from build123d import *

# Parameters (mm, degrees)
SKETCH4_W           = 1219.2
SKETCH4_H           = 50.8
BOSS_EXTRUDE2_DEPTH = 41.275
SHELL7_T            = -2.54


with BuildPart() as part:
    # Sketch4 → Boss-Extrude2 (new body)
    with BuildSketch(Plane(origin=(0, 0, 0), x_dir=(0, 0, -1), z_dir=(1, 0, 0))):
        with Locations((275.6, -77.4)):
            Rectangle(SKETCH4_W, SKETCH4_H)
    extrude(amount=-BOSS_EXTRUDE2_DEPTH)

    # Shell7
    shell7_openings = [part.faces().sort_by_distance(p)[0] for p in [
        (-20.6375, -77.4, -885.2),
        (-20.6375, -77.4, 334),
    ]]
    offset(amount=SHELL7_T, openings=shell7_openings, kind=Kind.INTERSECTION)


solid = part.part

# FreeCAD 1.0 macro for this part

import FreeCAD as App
import Part
import Sketcher
from FreeCAD import Vector
Q = App.Units.Quantity


def faces_at(feature, points):
    """Names of the faces that lie closest to the given points."""
    faces = feature.Shape.Faces
    near = lambda p: min(range(len(faces)), key=lambda i: faces[i].distToShape(Part.Vertex(*p))[0])
    return sorted({f"Face{near(p) + 1}" for p in points})

doc = App.newDocument("Part")
params = doc.addObject("Spreadsheet::Sheet", "Params")
for row, (alias, value) in enumerate([
    ("sketch1_width", "2 in"),
    ("sketch1_height", "48 in"),
    ("pad1_length", "1.625 in"),
    ("thickness_wall", "0.1 in"),
], start=1):
    params.set(f"A{row}", alias)
    params.set(f"B{row}", "=" + value)
    params.setAlias(f"B{row}", alias)

body = doc.addObject("PartDesign::Body", "Body")

sketch1 = body.newObject("Sketcher::SketchObject", "Sketch")
sketch1.AttachmentSupport = (doc.getObject("YZ_Plane"), [""])
sketch1.MapMode = "FlatFace"
sketch1.addGeometry([
    Part.LineSegment(Vector(-52, 334, 0), Vector(-103, 334, 0)),
    Part.LineSegment(Vector(-103, 334, 0), Vector(-103, -885, 0)),
    Part.LineSegment(Vector(-103, -885, 0), Vector(-52, -885, 0)),
    Part.LineSegment(Vector(-52, -885, 0), Vector(-52, 334, 0)),
], False)
sketch1.addConstraint([
    Sketcher.Constraint("Coincident", 0, 2, 1, 1),
    Sketcher.Constraint("Coincident", 1, 2, 2, 1),
    Sketcher.Constraint("Coincident", 2, 2, 3, 1),
    Sketcher.Constraint("Coincident", 3, 2, 0, 1),
    Sketcher.Constraint("Horizontal", 0),
    Sketcher.Constraint("Vertical", 1),
    Sketcher.Constraint("Horizontal", 2),
    Sketcher.Constraint("Vertical", 3),
    Sketcher.Constraint("DistanceX", 0, 2, 0, 1, Q("2 in")),
    Sketcher.Constraint("DistanceY", 1, 2, 1, 1, Q("48 in")),
    Sketcher.Constraint("DistanceX", 0, 2, -1, 1, Q("102.8 mm")),
    Sketcher.Constraint("DistanceY", -1, 1, 0, 2, Q("334 mm")),
])
sketch1.setExpression("Constraints[8]", "Params.sketch1_width")
sketch1.setExpression("Constraints[9]", "Params.sketch1_height")
pad1 = body.newObject("PartDesign::Pad", "Pad")
pad1.Profile = sketch1
pad1.setExpression("Length", "Params.pad1_length")
pad1.Reversed = True
doc.recompute()

thickness = body.newObject("PartDesign::Thickness", "Thickness")
thickness.Base = (pad1, faces_at(pad1, [(-20.637, -77.4, -885.2), (-20.637, -77.4, 334)]))
thickness.setExpression("Value", "Params.thickness_wall")
thickness.Reversed = True
thickness.Join = "Intersection"

doc.recompute()
